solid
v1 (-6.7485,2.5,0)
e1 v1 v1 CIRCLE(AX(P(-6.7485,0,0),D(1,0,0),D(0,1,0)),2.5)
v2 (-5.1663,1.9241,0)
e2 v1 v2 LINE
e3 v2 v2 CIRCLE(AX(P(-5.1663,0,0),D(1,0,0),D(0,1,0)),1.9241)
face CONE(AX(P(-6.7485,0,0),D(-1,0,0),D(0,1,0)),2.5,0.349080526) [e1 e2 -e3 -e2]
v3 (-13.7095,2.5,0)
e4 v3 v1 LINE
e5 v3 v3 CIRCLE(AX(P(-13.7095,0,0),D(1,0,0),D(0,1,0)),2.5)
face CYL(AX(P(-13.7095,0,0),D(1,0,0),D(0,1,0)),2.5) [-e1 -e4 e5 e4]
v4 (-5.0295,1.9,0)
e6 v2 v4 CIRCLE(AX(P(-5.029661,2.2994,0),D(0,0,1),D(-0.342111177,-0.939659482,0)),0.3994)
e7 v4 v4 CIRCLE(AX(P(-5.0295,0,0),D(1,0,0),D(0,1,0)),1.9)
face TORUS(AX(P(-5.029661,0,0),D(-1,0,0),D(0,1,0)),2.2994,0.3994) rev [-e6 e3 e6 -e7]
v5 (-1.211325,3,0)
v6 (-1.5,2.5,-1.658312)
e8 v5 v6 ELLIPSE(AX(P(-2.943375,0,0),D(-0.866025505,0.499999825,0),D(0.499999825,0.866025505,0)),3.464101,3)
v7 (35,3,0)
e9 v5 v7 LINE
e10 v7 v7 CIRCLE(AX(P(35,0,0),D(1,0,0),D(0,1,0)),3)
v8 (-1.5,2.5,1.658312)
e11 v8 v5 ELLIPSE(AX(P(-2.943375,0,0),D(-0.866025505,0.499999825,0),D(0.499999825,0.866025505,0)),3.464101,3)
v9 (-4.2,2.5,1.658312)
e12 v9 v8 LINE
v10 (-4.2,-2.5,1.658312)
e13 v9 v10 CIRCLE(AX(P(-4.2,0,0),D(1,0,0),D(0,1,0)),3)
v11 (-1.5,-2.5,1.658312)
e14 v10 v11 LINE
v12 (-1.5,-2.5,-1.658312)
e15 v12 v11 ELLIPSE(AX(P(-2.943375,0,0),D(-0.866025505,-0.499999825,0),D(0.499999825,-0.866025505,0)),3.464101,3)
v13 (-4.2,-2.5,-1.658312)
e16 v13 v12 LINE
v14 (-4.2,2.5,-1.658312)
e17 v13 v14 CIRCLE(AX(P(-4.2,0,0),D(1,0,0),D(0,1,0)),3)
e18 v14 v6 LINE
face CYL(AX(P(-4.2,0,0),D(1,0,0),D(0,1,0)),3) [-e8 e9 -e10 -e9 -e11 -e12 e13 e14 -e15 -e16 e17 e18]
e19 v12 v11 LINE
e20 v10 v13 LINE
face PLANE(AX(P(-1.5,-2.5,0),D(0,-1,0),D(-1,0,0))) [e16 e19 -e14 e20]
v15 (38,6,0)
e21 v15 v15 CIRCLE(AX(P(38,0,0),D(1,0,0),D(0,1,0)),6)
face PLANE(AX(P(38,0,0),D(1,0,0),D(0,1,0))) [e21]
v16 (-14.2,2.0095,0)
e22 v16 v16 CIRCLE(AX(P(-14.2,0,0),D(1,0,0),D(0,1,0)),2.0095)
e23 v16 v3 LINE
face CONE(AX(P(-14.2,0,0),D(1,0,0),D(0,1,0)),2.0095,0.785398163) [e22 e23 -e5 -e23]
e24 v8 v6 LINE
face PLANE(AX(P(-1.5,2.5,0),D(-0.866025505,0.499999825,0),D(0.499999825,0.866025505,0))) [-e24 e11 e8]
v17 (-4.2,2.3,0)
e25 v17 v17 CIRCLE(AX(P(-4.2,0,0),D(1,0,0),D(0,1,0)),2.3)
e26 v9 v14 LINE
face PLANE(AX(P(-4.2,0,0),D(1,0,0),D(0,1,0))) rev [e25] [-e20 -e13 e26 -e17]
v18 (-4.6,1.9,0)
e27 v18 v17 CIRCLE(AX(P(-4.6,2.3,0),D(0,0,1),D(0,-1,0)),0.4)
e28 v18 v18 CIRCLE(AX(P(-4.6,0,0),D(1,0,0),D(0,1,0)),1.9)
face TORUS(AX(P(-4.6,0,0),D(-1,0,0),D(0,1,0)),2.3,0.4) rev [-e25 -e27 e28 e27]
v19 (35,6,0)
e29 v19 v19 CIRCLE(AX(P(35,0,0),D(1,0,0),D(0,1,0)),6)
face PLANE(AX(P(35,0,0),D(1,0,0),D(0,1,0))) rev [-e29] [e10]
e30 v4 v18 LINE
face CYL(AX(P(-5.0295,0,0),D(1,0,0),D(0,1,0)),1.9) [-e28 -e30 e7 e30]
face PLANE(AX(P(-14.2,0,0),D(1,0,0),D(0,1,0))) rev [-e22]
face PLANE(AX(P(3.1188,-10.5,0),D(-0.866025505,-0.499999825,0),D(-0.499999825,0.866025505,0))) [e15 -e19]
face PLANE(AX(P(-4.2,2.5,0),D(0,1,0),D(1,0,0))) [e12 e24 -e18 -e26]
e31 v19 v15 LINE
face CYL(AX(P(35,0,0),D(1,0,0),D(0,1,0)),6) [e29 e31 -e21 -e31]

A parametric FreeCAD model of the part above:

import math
import FreeCAD as App
import Part
import Sketcher

V = App.Vector
Q = App.Units.Quantity


def add_polygon(sketch, points):
    """Adds a closed chain of lines whose ends are joined by coincident constraints."""
    first, n = sketch.GeometryCount, len(points)
    for a, b in zip(points, points[1:] + points[:1]):
        sketch.addGeometry(Part.LineSegment(App.Vector(*a, 0), App.Vector(*b, 0)), False)
    for i in range(n):
        sketch.addConstraint(Sketcher.Constraint("Coincident", first + i, 2, first + (i + 1) % n, 1))

doc = App.newDocument("Part")
body = doc.addObject("PartDesign::Body", "Body")

# Sketch on XY plane
sketch1 = doc.addObject("Sketcher::SketchObject", "Sketch")
body.addObject(sketch1)
sketch1.AttachmentSupport = (doc.XY_Plane, [""])
sketch1.MapMode = "FlatFace"
add_polygon(sketch1, [(-4.2, 0), (38, 0), (38, 3), (-4.2, 3)])  # lines 0-3
sketch1.addConstraint(Sketcher.Constraint("Horizontal", 0))
sketch1.addConstraint(Sketcher.Constraint("Vertical", 1))
sketch1.addConstraint(Sketcher.Constraint("Horizontal", 2))
sketch1.addConstraint(Sketcher.Constraint("Vertical", 3))
sketch1.addConstraint(Sketcher.Constraint("PointOnObject", 0, 2, -1))
sketch1.addConstraint(Sketcher.Constraint("DistanceY", 1, 1, 1, 2, 3.0))
sketch1.addConstraint(Sketcher.Constraint("DistanceX", 0, 1, 0, 2, 42.2))
sketch1.addConstraint(Sketcher.Constraint("DistanceX", -1, 1, 0, 2, 38.0))
revolution = doc.addObject("PartDesign::Revolution", "Revolution")
body.addObject(revolution)
revolution.Profile = sketch1
revolution.ReferenceAxis = (sketch1, ["H_Axis"])
revolution.Angle = 360

# Sketch on XY plane
sketch2 = doc.addObject("Sketcher::SketchObject", "Sketch001")
body.addObject(sketch2)
sketch2.AttachmentSupport = (doc.XY_Plane, [""])
sketch2.MapMode = "FlatFace"
add_polygon(sketch2, [(35, 0), (38, 0), (38, 6), (35, 6)])  # lines 0-3
sketch2.addConstraint(Sketcher.Constraint("Horizontal", 0))
sketch2.addConstraint(Sketcher.Constraint("Vertical", 1))
sketch2.addConstraint(Sketcher.Constraint("Horizontal", 2))
sketch2.addConstraint(Sketcher.Constraint("Vertical", 3))
sketch2.addConstraint(Sketcher.Constraint("PointOnObject", 0, 2, -1))
sketch2.addConstraint(Sketcher.Constraint("DistanceX", 0, 1, 0, 2, 3.0))
sketch2.addConstraint(Sketcher.Constraint("DistanceY", 1, 1, 1, 2, 6.0))
sketch2.addConstraint(Sketcher.Constraint("DistanceX", -1, 1, 0, 2, 38.0))
revolution2 = doc.addObject("PartDesign::Revolution", "Revolution001")
body.addObject(revolution2)
revolution2.Profile = sketch2
revolution2.ReferenceAxis = (sketch2, ["H_Axis"])
revolution2.Angle = 360

# Sketch on XY plane
sketch3 = doc.addObject("Sketcher::SketchObject", "Sketch002")
body.addObject(sketch3)
sketch3.AttachmentSupport = (doc.XY_Plane, [""])
sketch3.MapMode = "FlatFace"
sketch3.addGeometry(Part.LineSegment(V(-14.2, 0, 0), V(-3.2, 0, 0)), False)
sketch3.addGeometry(Part.LineSegment(V(-3.2, 0, 0), V(-3.2, 2.5, 0)), False)
sketch3.addGeometry(Part.LineSegment(V(-3.2, 2.5, 0), V(-4.2, 2.5, 0)), False)
sketch3.addGeometry(Part.LineSegment(V(-4.2, 2.5, 0), V(-4.2, 2.3, 0)), False)
sketch3.addGeometry(Part.ArcOfCircle(Part.Circle(V(-4.6, 2.3, 0), V(0, 0, 1), 0.4), math.radians(-90), math.radians(0)), False)
sketch3.addGeometry(Part.LineSegment(V(-4.6, 1.9, 0), V(-5.03, 1.9, 0)), False)
sketch3.addGeometry(Part.ArcOfCircle(Part.Circle(V(-5.03, 2.3, 0), V(0, 0, 1), 0.4), math.radians(-110), math.radians(-90)), False)
sketch3.addGeometry(Part.LineSegment(V(-5.17, 1.92, 0), V(-6.75, 2.5, 0)), False)
sketch3.addGeometry(Part.LineSegment(V(-6.75, 2.5, 0), V(-13.71, 2.5, 0)), False)
sketch3.addGeometry(Part.LineSegment(V(-13.71, 2.5, 0), V(-14.2, 2.01, 0)), False)
sketch3.addGeometry(Part.LineSegment(V(-14.2, 2.01, 0), V(-14.2, 0, 0)), False)
sketch3.addConstraint(Sketcher.Constraint("Coincident", 0, 2, 1, 1))
sketch3.addConstraint(Sketcher.Constraint("Coincident", 1, 2, 2, 1))
sketch3.addConstraint(Sketcher.Constraint("Coincident", 2, 2, 3, 1))
sketch3.addConstraint(Sketcher.Constraint("Tangent", 3, 2, 4, 2))
sketch3.addConstraint(Sketcher.Constraint("Tangent", 4, 1, 5, 1))
sketch3.addConstraint(Sketcher.Constraint("Tangent", 5, 2, 6, 2))
sketch3.addConstraint(Sketcher.Constraint("Tangent", 6, 1, 7, 1))
sketch3.addConstraint(Sketcher.Constraint("Coincident", 7, 2, 8, 1))
sketch3.addConstraint(Sketcher.Constraint("Coincident", 8, 2, 9, 1))
sketch3.addConstraint(Sketcher.Constraint("Coincident", 9, 2, 10, 1))
sketch3.addConstraint(Sketcher.Constraint("Coincident", 10, 2, 0, 1))
sketch3.addConstraint(Sketcher.Constraint("Horizontal", 0))
sketch3.addConstraint(Sketcher.Constraint("Vertical", 1))
sketch3.addConstraint(Sketcher.Constraint("Horizontal", 2))
sketch3.addConstraint(Sketcher.Constraint("Vertical", 3))
sketch3.addConstraint(Sketcher.Constraint("Horizontal", 5))
sketch3.addConstraint(Sketcher.Constraint("Horizontal", 8))
sketch3.addConstraint(Sketcher.Constraint("Vertical", 10))
sketch3.addConstraint(Sketcher.Constraint("Equal", 4, 6))
sketch3.addConstraint(Sketcher.Constraint("PointOnObject", 0, 2, -1))
sketch3.addConstraint(Sketcher.Constraint("Horizontal", 2, 2, 7, 2))
sketch3.addConstraint(Sketcher.Constraint("Radius", 4, 0.4))
sketch3.addConstraint(Sketcher.Constraint("DistanceX", 0, 1, 0, 2, 11.0))
sketch3.addConstraint(Sketcher.Constraint("DistanceX", 2, 2, 2, 1, 1.0))
sketch3.addConstraint(Sketcher.Constraint("Angle", 7, Q("159.9992 deg")))
sketch3.addConstraint(Sketcher.Constraint("Angle", 9, Q("-135 deg")))
sketch3.addConstraint(Sketcher.Constraint("DistanceY", 1, 1, 1, 2, 2.5))
sketch3.addConstraint(Sketcher.Constraint("DistanceY", 3, 2, 3, 1, 0.2))
sketch3.addConstraint(Sketcher.Constraint("DistanceX", 4, 3, -1, 1, 4.6))
sketch3.addConstraint(Sketcher.Constraint("DistanceX", 8, 2, 8, 1, 6.961))
sketch3.addConstraint(Sketcher.Constraint("DistanceX", 5, 2, 5, 1, 0.4295))
revolution3 = doc.addObject("PartDesign::Revolution", "Revolution002")
body.addObject(revolution3)
revolution3.Profile = sketch3
revolution3.ReferenceAxis = (sketch3, ["H_Axis"])
revolution3.Angle = 360

# Sketch on XY plane
sketch4 = doc.addObject("Sketcher::SketchObject", "Sketch003")
body.addObject(sketch4)
sketch4.AttachmentSupport = (doc.XY_Plane, [""])
sketch4.MapMode = "FlatFace"
add_polygon(sketch4, [(-23.4, 10.5), (-23.4, -10.5), (3.1, -10.5), (-1.5, -2.5), (-4.2, -2.5), (-4.2, -7.5), (-19.2, -7.5), (-19.2, 7.5), (-4.2, 7.5), (-4.2, 2.5), (-1.5, 2.5), (3.1, 10.5)])  # lines 0-11
sketch4.addConstraint(Sketcher.Constraint("Vertical", 0))
sketch4.addConstraint(Sketcher.Constraint("Horizontal", 1))
sketch4.addConstraint(Sketcher.Constraint("Horizontal", 3))
sketch4.addConstraint(Sketcher.Constraint("Vertical", 4))
sketch4.addConstraint(Sketcher.Constraint("Horizontal", 5))
sketch4.addConstraint(Sketcher.Constraint("Vertical", 6))
sketch4.addConstraint(Sketcher.Constraint("Horizontal", 7))
sketch4.addConstraint(Sketcher.Constraint("Vertical", 8))
sketch4.addConstraint(Sketcher.Constraint("Horizontal", 9))
sketch4.addConstraint(Sketcher.Constraint("Horizontal", 11))
sketch4.addConstraint(Sketcher.Constraint("Symmetric", 4, 2, 7, 2, -1))
sketch4.addConstraint(Sketcher.Constraint("Symmetric", 2, 2, 9, 2, -1))
sketch4.addConstraint(Sketcher.Constraint("Symmetric", 1, 2, 10, 2, -1))
sketch4.addConstraint(Sketcher.Constraint("Equal", 7, 6))
sketch4.addConstraint(Sketcher.Constraint("DistanceX", 5, 2, 5, 1, 15.0))
sketch4.addConstraint(Sketcher.Constraint("DistanceY", 0, 2, 0, 1, 21.0))
sketch4.addConstraint(Sketcher.Constraint("DistanceY", 4, 2, 4, 1, 5.0))
sketch4.addConstraint(Sketcher.Constraint("Angle", 2, Q("120 deg")))
sketch4.addConstraint(Sketcher.Constraint("DistanceX", 3, 2, 3, 1, 2.7))
sketch4.addConstraint(Sketcher.Constraint("DistanceX", 0, 2, -1, 1, 23.4))
sketch4.addConstraint(Sketcher.Constraint("DistanceX", 2, 2, -1, 1, 1.5))
pocket1 = doc.addObject("PartDesign::Pocket", "Pocket")
body.addObject(pocket1)
pocket1.Profile = sketch4
pocket1.Length = 12
pocket1.Midplane = True

doc.recompute()
